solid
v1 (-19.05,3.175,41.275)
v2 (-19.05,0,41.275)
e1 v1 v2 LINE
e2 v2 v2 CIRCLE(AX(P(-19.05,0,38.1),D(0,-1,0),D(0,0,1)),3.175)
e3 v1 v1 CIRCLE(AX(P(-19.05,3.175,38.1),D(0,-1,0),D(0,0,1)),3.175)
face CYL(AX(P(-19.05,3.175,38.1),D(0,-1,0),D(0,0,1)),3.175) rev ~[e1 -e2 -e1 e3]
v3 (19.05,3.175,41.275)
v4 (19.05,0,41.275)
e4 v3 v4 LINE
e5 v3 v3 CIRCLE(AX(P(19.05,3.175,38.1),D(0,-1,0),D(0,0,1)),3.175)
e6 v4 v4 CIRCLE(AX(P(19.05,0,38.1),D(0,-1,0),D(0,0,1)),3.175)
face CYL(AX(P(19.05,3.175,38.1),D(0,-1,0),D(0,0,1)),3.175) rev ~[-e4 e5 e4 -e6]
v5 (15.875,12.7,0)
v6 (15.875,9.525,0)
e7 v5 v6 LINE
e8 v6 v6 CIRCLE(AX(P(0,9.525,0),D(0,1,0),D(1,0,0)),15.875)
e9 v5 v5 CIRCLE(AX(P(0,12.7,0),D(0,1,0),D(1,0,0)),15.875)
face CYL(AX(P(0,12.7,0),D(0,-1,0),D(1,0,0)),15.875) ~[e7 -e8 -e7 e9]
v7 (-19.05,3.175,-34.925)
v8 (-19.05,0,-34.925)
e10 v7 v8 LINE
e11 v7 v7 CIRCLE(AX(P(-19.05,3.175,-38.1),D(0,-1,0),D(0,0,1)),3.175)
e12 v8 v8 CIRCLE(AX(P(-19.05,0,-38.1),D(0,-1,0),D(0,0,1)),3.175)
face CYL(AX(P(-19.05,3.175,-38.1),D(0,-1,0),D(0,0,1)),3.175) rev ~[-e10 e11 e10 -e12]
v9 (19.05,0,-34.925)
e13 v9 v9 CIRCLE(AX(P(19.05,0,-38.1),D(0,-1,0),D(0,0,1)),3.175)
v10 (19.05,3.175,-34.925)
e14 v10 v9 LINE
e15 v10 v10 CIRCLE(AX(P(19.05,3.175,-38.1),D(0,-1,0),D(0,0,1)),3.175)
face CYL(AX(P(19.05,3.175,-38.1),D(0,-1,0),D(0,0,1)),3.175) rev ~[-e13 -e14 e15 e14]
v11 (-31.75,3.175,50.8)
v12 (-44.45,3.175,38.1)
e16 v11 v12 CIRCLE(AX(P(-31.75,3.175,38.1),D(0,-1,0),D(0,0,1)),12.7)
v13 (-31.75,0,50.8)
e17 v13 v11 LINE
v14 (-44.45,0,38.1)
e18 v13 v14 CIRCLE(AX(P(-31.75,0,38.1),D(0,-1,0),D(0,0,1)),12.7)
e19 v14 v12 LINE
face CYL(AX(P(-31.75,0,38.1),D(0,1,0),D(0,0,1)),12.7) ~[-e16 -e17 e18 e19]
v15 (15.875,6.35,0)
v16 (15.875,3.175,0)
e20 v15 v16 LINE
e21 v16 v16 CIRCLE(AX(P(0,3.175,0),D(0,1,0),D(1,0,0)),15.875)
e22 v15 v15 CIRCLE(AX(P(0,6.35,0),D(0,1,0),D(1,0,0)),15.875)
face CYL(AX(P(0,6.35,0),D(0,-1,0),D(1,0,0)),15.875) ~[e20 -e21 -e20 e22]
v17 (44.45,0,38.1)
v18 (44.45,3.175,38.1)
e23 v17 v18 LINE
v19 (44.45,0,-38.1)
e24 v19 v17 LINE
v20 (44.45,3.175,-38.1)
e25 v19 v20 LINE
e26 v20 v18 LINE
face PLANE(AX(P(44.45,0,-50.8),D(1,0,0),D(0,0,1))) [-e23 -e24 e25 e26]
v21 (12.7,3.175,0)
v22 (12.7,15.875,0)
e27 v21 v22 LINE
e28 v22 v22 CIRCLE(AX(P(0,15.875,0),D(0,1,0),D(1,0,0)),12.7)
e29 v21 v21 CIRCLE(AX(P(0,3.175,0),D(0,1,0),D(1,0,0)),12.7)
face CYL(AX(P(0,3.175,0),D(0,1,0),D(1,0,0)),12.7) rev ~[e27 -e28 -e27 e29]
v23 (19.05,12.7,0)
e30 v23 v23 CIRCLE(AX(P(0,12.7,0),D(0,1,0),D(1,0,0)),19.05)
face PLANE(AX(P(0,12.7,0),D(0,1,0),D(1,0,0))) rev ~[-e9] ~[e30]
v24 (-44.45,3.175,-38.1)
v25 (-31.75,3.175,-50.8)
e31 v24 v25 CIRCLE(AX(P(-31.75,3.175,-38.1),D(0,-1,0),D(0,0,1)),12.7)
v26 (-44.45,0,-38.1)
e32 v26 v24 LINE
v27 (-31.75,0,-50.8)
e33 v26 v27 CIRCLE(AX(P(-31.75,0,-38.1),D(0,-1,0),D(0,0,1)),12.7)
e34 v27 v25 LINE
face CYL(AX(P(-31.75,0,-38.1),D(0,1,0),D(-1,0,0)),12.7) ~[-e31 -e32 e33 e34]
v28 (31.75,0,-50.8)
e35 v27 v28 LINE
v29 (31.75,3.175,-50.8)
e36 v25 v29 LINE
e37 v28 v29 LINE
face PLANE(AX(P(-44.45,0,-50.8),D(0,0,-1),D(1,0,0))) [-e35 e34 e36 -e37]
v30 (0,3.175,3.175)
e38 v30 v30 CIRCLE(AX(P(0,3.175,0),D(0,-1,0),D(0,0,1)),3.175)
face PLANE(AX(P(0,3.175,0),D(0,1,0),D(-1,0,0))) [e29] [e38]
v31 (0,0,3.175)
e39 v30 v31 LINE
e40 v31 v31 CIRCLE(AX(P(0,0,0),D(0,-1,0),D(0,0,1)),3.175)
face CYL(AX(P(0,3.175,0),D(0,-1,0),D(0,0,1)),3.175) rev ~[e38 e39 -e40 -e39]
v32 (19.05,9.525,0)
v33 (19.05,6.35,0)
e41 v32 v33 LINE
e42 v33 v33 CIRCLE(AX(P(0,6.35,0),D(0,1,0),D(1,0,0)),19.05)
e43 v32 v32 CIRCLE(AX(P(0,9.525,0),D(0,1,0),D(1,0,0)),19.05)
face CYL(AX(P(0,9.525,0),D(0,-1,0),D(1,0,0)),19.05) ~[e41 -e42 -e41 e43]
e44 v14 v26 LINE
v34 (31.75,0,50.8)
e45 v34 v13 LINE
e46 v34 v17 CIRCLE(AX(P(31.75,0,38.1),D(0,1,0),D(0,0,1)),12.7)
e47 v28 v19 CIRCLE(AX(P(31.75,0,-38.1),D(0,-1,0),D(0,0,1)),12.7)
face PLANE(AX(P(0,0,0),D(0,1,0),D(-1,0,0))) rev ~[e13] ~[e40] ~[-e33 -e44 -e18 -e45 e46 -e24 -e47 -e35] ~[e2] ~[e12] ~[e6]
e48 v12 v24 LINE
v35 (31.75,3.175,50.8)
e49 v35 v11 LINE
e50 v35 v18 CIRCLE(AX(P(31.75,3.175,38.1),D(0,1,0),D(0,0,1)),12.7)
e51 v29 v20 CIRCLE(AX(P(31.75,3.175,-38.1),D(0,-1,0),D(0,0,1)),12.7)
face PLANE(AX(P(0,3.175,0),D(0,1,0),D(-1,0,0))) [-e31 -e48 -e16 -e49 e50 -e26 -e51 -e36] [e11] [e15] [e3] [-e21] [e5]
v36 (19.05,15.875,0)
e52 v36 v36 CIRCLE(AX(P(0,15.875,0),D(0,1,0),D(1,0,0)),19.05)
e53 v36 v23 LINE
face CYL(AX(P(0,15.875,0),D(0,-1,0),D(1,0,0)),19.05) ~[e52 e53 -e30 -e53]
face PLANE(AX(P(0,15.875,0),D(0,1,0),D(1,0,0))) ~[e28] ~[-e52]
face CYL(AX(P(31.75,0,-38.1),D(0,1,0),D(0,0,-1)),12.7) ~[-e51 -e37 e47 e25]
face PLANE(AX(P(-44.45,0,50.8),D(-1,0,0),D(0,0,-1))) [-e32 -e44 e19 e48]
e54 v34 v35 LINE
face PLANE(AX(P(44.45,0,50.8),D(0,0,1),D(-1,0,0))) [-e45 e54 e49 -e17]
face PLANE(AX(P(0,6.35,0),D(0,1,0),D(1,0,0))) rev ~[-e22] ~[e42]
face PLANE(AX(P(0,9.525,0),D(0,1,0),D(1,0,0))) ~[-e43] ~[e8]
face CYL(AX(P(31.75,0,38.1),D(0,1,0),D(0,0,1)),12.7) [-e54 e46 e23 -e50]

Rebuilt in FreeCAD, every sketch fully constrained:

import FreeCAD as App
import Part
import Sketcher
from FreeCAD import Vector
Q = App.Units.Quantity


def edges_at(feature, points):
    """Names of the edges that pass closest to the given points."""
    edges = feature.Shape.Edges
    near = lambda p: min(range(len(edges)), key=lambda i: edges[i].distToShape(Part.Vertex(*p))[0])
    return sorted({f"Edge{near(p) + 1}" for p in points})


def add_polygon(sketch, points):
    """Adds a closed chain of lines whose ends are joined by coincident constraints."""
    first, n = sketch.GeometryCount, len(points)
    for a, b in zip(points, points[1:] + points[:1]):
        sketch.addGeometry(Part.LineSegment(App.Vector(*a, 0), App.Vector(*b, 0)), False)
    for i in range(n):
        sketch.addConstraint(Sketcher.Constraint("Coincident", first + i, 2, first + (i + 1) % n, 1))

doc = App.newDocument("Part")
body = doc.addObject("PartDesign::Body", "Body")

# Sketch on XZ plane
sketch1 = body.newObject("Sketcher::SketchObject", "Sketch")
sketch1.AttachmentSupport = (doc.getObject("XZ_Plane"), [""])
sketch1.MapMode = "FlatFace"
add_polygon(sketch1, [(-44, 51), (44, 51), (44, -51), (-44, -51)])  # lines 0-3
sketch1.addConstraint([
    Sketcher.Constraint("Horizontal", 0),
    Sketcher.Constraint("Vertical", 1),
    Sketcher.Constraint("Horizontal", 2),
    Sketcher.Constraint("Vertical", 3),
    Sketcher.Constraint("Symmetric", 0, 2, 2, 2, -1, 1),
    Sketcher.Constraint("DistanceY", -1, 1, 0, 2, Q("2 in")),
    Sketcher.Constraint("DistanceX", -1, 1, 0, 2, Q("1.75 in")),
])
pad1 = body.newObject("PartDesign::Pad", "Pad")
pad1.Profile = sketch1
pad1.Length = Q("0.125 in")
pad1.Reversed = True
doc.recompute()

fillet = body.newObject("PartDesign::Fillet", "Fillet")
fillet.Base = (pad1, edges_at(pad1, [
    (44.45, 1.587, 50.8),
    (44.45, 1.587, -50.8),
    (-44.45, 1.587, 50.8),
    (-44.45, 1.587, -50.8),
]))
fillet.Radius = Q("0.5 in")

# Sketch on XZ plane
sketch2 = body.newObject("Sketcher::SketchObject", "Sketch001")
sketch2.AttachmentSupport = (doc.getObject("XZ_Plane"), [""])
sketch2.MapMode = "FlatFace"
sketch2.AttachmentOffset = App.Placement(Vector(0, 0, -0.125 * 25.4), App.Rotation())
sketch2.addGeometry([
    Part.Circle(Vector(0, 0, 0), Vector(0, 0, 1), 3.2),  # 0
    Part.Circle(Vector(-19.1, -38.1, 0), Vector(0, 0, 1), 3.2),  # 1
    Part.Circle(Vector(19.1, -38.1, 0), Vector(0, 0, 1), 3.2),  # 2
    Part.Circle(Vector(19.1, 38.1, 0), Vector(0, 0, 1), 3.2),  # 3
    Part.Circle(Vector(-19.1, 38.1, 0), Vector(0, 0, 1), 3.2),  # 4
], False)
sketch2.addConstraint([
    Sketcher.Constraint("Coincident", 0, 3, -1, 1),
    Sketcher.Constraint("Equal", 0, 1),
    Sketcher.Constraint("Equal", 1, 2),
    Sketcher.Constraint("Equal", 2, 3),
    Sketcher.Constraint("Equal", 3, 4),
    Sketcher.Constraint("Symmetric", 1, 3, 3, 3, -1, 1),
    Sketcher.Constraint("Symmetric", 2, 3, 4, 3, -1, 1),
    Sketcher.Constraint("Symmetric", 1, 3, 2, 3, -2),
    Sketcher.Constraint("Diameter", 0, Q("0.25 in")),
    Sketcher.Constraint("DistanceY", 2, 3, 3, 3, Q("3 in")),
    Sketcher.Constraint("DistanceX", 1, 3, 2, 3, Q("1.5 in")),
])
doc.recompute()
hole = body.newObject("PartDesign::Hole", "Hole")
hole.Profile = sketch2
hole.ThreadType = "None"
hole.Diameter = Q("0.25 in")
hole.DepthType = "ThroughAll"
hole.Reversed = True

# Sketch on XY plane
sketch3 = body.newObject("Sketcher::SketchObject", "Sketch002")
sketch3.AttachmentSupport = (doc.getObject("XY_Plane"), [""])
sketch3.MapMode = "FlatFace"
add_polygon(sketch3, [(12.7, 15.9), (12.7, 3.2), (15.9, 3.2), (15.9, 6.3), (19.1, 6.3), (19.1, 9.5), (15.9, 9.5), (15.9, 12.7), (19.1, 12.7), (19.1, 15.9)])  # lines 0-9
sketch3.addConstraint([
    Sketcher.Constraint("Vertical", 0),
    Sketcher.Constraint("Horizontal", 1),
    Sketcher.Constraint("Vertical", 2),
    Sketcher.Constraint("Horizontal", 3),
    Sketcher.Constraint("Vertical", 4),
    Sketcher.Constraint("Horizontal", 5),
    Sketcher.Constraint("Vertical", 6),
    Sketcher.Constraint("Horizontal", 7),
    Sketcher.Constraint("Vertical", 8),
    Sketcher.Constraint("Horizontal", 9),
    Sketcher.Constraint("Vertical", 2, 2, 5, 2),
    Sketcher.Constraint("Vertical", 4, 2, 7, 2),
    Sketcher.Constraint("Equal", 1, 3),
    Sketcher.Constraint("Equal", 7, 2),
    Sketcher.Constraint("Equal", 2, 4),
    Sketcher.Constraint("Equal", 4, 6),
    Sketcher.Constraint("Equal", 6, 8),
    Sketcher.Constraint("DistanceY", 0, 2, 0, 1, Q("0.5 in")),
    Sketcher.Constraint("DistanceX", -1, 1, 0, 2, Q("0.5 in")),
    Sketcher.Constraint("DistanceY", -1, 1, 6, 2, Q("0.5 in")),
])
revolution = body.newObject("PartDesign::Revolution", "Revolution")
revolution.Profile = sketch3
revolution.ReferenceAxis = (sketch3, ["V_Axis"])
revolution.Angle = 360

doc.recompute()
